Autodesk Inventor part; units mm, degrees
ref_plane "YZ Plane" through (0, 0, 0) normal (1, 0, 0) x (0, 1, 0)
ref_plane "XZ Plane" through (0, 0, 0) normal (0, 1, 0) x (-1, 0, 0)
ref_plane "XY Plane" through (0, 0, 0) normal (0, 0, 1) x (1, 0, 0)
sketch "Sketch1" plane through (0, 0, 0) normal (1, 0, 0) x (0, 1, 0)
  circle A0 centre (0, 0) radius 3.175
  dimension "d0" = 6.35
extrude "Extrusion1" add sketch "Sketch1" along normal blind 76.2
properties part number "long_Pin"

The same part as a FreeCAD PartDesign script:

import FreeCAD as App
import Part
import Sketcher
Q = App.Units.Quantity

doc = App.newDocument("Part")
body = doc.addObject("PartDesign::Body", "Body")

# Sketch on YZ plane
sketch1 = doc.addObject("Sketcher::SketchObject", "Sketch")
body.addObject(sketch1)
sketch1.AttachmentSupport = (doc.YZ_Plane, [""])
sketch1.MapMode = "FlatFace"
sketch1.addGeometry(Part.Circle(App.Vector(0, 0, 0), App.Vector(0, 0, 1), 3.175), False)
sketch1.addConstraint([
    Sketcher.Constraint("Coincident", 0, 3, -1, 1),
    Sketcher.Constraint("Diameter", 0, Q("0.25 in")),
])
pad1 = doc.addObject("PartDesign::Pad", "Pad")
body.addObject(pad1)
pad1.Profile = sketch1
pad1.Length = Q("3 in")

doc.recompute()
